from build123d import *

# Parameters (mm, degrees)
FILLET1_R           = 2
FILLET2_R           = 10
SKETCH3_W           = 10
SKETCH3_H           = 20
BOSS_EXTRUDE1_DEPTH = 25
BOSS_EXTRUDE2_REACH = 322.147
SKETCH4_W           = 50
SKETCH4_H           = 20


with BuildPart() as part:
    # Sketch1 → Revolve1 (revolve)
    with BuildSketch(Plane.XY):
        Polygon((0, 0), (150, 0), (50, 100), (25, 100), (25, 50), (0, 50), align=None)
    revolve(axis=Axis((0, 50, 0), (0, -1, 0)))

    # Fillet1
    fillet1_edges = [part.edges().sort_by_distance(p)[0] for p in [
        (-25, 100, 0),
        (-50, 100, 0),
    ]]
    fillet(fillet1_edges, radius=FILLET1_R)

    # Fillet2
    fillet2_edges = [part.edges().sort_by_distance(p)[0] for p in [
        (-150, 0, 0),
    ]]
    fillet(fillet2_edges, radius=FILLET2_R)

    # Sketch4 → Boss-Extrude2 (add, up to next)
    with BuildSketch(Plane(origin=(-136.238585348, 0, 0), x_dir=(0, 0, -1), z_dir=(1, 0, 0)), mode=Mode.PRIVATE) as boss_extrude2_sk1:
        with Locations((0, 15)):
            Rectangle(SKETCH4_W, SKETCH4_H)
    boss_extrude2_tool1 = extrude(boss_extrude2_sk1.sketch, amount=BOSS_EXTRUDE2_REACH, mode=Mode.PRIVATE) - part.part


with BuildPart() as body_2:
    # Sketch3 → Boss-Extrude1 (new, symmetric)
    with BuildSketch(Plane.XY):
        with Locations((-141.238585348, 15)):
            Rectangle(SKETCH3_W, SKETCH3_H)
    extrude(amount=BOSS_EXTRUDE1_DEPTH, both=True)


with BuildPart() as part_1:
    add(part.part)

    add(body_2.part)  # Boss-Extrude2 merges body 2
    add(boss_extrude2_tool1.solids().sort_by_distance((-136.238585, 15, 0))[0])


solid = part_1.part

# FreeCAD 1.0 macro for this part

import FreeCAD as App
import Part
import Sketcher
Q = App.Units.Quantity


def edges_at(feature, points):
    """Names of the edges that pass closest to the given points."""
    edges = feature.Shape.Edges
    near = lambda p: min(range(len(edges)), key=lambda i: edges[i].distToShape(Part.Vertex(*p))[0])
    return sorted({f"Edge{near(p) + 1}" for p in points})


def add_polygon(sketch, points):
    """Adds a closed chain of lines whose ends are joined by coincident constraints."""
    first, n = sketch.GeometryCount, len(points)
    for a, b in zip(points, points[1:] + points[:1]):
        sketch.addGeometry(Part.LineSegment(App.Vector(*a, 0), App.Vector(*b, 0)), False)
    for i in range(n):
        sketch.addConstraint(Sketcher.Constraint("Coincident", first + i, 2, first + (i + 1) % n, 1))

doc = App.newDocument("Part")
body = doc.addObject("PartDesign::Body", "Body")

# Sketch on XY plane
sketch1 = body.newObject("Sketcher::SketchObject", "Sketch")
sketch1.AttachmentSupport = (doc.getObject("XY_Plane"), [""])
sketch1.MapMode = "FlatFace"
add_polygon(sketch1, [(0, 0), (150, 0), (50, 100), (25, 100), (25, 50), (0, 50)])  # lines 0-5
sketch1.addConstraint(Sketcher.Constraint("Horizontal", 0))
sketch1.addConstraint(Sketcher.Constraint("Horizontal", 2))
sketch1.addConstraint(Sketcher.Constraint("Vertical", 3))
sketch1.addConstraint(Sketcher.Constraint("Horizontal", 4))
sketch1.addConstraint(Sketcher.Constraint("Vertical", 5))
sketch1.addConstraint(Sketcher.Constraint("Coincident", 5, 2, -1, 1))
sketch1.addConstraint(Sketcher.Constraint("Equal", 2, 4))
sketch1.addConstraint(Sketcher.Constraint("Equal", 3, 5))
sketch1.addConstraint(Sketcher.Constraint("DistanceX", 0, 1, 0, 2, Q("150 mm")))
sketch1.addConstraint(Sketcher.Constraint("DistanceX", 2, 2, 2, 1, Q("25 mm")))
sketch1.addConstraint(Sketcher.Constraint("DistanceY", 3, 2, 3, 1, Q("50 mm")))
revolution = body.newObject("PartDesign::Revolution", "Revolution")
revolution.Profile = sketch1
revolution.ReferenceAxis = (sketch1, ["V_Axis"])
revolution.Angle = 360
doc.recompute()

fillet = body.newObject("PartDesign::Fillet", "Fillet")
fillet.Base = (revolution, edges_at(revolution, [(-25, 100, 0), (-50, 100, 0)]))
fillet.Radius = 2
doc.recompute()

fillet2 = body.newObject("PartDesign::Fillet", "Fillet001")
fillet2.Base = (fillet, edges_at(fillet, [(-150, 0, 0)]))
fillet2.Radius = 10
body2 = doc.addObject("PartDesign::Body", "Body001")

# Sketch on XY plane
sketch2 = body2.newObject("Sketcher::SketchObject", "Sketch001")
sketch2.AttachmentSupport = (doc.getObject("XY_Plane001"), [""])
sketch2.MapMode = "FlatFace"
add_polygon(sketch2, [(-146, 25), (-146, 5), (-136, 5), (-136, 25)])  # lines 0-3
sketch2.addConstraint(Sketcher.Constraint("Vertical", 0))
sketch2.addConstraint(Sketcher.Constraint("Horizontal", 1))
sketch2.addConstraint(Sketcher.Constraint("Vertical", 2))
sketch2.addConstraint(Sketcher.Constraint("Horizontal", 3))
sketch2.addConstraint(Sketcher.Constraint("DistanceX", 1, 1, 1, 2, Q("10 mm")))
sketch2.addConstraint(Sketcher.Constraint("DistanceY", 0, 2, 0, 1, Q("20 mm")))
sketch2.addConstraint(Sketcher.Constraint("DistanceY", -1, 1, 0, 2, Q("5 mm")))
sketch2.addConstraint(Sketcher.Constraint("DistanceX", 0, 2, -1, 1, Q("146.238585 mm")))
pad1 = body2.newObject("PartDesign::Pad", "Pad")
pad1.Profile = sketch2
pad1.Length = 50
pad1.Midplane = True
body.AllowCompound = True
doc.recompute()

boolean = body.newObject("PartDesign::Boolean", "Boolean")
boolean.Type = "Fuse"
boolean.addObjects([body2])

# Sketch on YZ plane
sketch3 = body.newObject("Sketcher::SketchObject", "Sketch002")
sketch3.AttachmentSupport = (doc.getObject("YZ_Plane"), [""])
sketch3.MapMode = "FlatFace"
sketch3.AttachmentOffset = App.Placement(App.Vector(0, 0, -136.238585), App.Rotation())
add_polygon(sketch3, [(25, 25), (5, 25), (5, -25), (25, -25)])  # lines 0-3
sketch3.addConstraint(Sketcher.Constraint("Horizontal", 0))
sketch3.addConstraint(Sketcher.Constraint("Vertical", 1))
sketch3.addConstraint(Sketcher.Constraint("Horizontal", 2))
sketch3.addConstraint(Sketcher.Constraint("Vertical", 3))
sketch3.addConstraint(Sketcher.Constraint("DistanceX", 0, 2, 0, 1, Q("20 mm")))
sketch3.addConstraint(Sketcher.Constraint("DistanceY", 1, 2, 1, 1, Q("50 mm")))
sketch3.addConstraint(Sketcher.Constraint("DistanceX", -1, 1, 0, 2, Q("5 mm")))
sketch3.addConstraint(Sketcher.Constraint("DistanceY", -1, 1, 0, 2, Q("25 mm")))
pad2 = body.newObject("PartDesign::Pad", "Pad001")
pad2.Profile = sketch3
pad2.Type = "UpToFirst"

doc.recompute()
